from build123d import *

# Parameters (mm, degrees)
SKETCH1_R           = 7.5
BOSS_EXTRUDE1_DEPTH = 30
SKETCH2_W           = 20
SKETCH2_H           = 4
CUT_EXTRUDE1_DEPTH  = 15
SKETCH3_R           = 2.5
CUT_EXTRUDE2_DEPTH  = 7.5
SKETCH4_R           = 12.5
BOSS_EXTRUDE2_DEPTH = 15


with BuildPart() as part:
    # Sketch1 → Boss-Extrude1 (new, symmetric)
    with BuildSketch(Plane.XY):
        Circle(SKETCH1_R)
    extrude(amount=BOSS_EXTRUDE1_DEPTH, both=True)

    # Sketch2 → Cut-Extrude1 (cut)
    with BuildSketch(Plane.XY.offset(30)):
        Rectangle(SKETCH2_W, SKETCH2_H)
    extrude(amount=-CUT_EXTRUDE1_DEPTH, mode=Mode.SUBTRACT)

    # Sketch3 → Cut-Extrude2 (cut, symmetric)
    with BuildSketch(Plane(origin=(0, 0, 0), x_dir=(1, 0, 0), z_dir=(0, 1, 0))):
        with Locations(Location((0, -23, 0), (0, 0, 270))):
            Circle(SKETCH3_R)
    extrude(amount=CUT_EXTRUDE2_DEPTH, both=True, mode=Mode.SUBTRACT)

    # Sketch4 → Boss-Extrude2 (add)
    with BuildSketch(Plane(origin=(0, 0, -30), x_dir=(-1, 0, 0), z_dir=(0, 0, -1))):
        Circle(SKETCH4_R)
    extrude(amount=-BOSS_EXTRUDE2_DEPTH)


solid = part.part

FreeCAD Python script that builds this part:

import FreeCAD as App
import Part
import Sketcher
from FreeCAD import Vector


def add_polygon(sketch, points):
    """Adds a closed chain of lines whose ends are joined by coincident constraints."""
    first, n = sketch.GeometryCount, len(points)
    for a, b in zip(points, points[1:] + points[:1]):
        sketch.addGeometry(Part.LineSegment(App.Vector(*a, 0), App.Vector(*b, 0)), False)
    for i in range(n):
        sketch.addConstraint(Sketcher.Constraint("Coincident", first + i, 2, first + (i + 1) % n, 1))

doc = App.newDocument("Part")
body = doc.addObject("PartDesign::Body", "Body")

# Sketch on XY plane
sketch1 = doc.addObject("Sketcher::SketchObject", "Sketch")
body.addObject(sketch1)
sketch1.AttachmentSupport = (doc.XY_Plane, [""])
sketch1.MapMode = "FlatFace"
sketch1.addGeometry(Part.Circle(Vector(0, 0, 0), Vector(0, 0, 1), 7.5), False)
sketch1.addConstraint([
    Sketcher.Constraint("Coincident", 0, 3, -1, 1),
    Sketcher.Constraint("Diameter", 0, 15.0),
])
pad1 = doc.addObject("PartDesign::Pad", "Pad")
body.addObject(pad1)
pad1.Profile = sketch1
pad1.Length = 60
pad1.Midplane = True

# Sketch on XY plane
sketch2 = doc.addObject("Sketcher::SketchObject", "Sketch001")
body.addObject(sketch2)
sketch2.AttachmentSupport = (doc.XY_Plane, [""])
sketch2.MapMode = "FlatFace"
sketch2.AttachmentOffset = App.Placement(Vector(0, 0, 30), App.Rotation())
add_polygon(sketch2, [(-10, 2), (-10, -2), (10, -2), (10, 2)])  # lines 0-3
sketch2.addConstraint([
    Sketcher.Constraint("Vertical", 0),
    Sketcher.Constraint("Horizontal", 1),
    Sketcher.Constraint("Vertical", 2),
    Sketcher.Constraint("Horizontal", 3),
    Sketcher.Constraint("Symmetric", 0, 2, 2, 2, -1, 1),
    Sketcher.Constraint("DistanceX", 1, 1, 1, 2, 20.0),
    Sketcher.Constraint("DistanceY", 0, 2, 0, 1, 4.0),
])
pocket1 = doc.addObject("PartDesign::Pocket", "Pocket")
body.addObject(pocket1)
pocket1.Profile = sketch2
pocket1.Length = 15

# Sketch on XZ plane
sketch3 = doc.addObject("Sketcher::SketchObject", "Sketch002")
body.addObject(sketch3)
sketch3.AttachmentSupport = (doc.XZ_Plane, [""])
sketch3.MapMode = "FlatFace"
sketch3.addGeometry(Part.Circle(Vector(0, 23, 0), Vector(0, 0, 1), 2.5), False)
sketch3.addConstraint([
    Sketcher.Constraint("PointOnObject", 0, 3, -2),
    Sketcher.Constraint("Diameter", 0, 5.0),
    Sketcher.Constraint("DistanceY", -1, 1, 0, 3, 23.0),
])
pocket2 = doc.addObject("PartDesign::Pocket", "Pocket001")
body.addObject(pocket2)
pocket2.Profile = sketch3
pocket2.Length = 15
pocket2.Midplane = True

# Sketch on XY plane
sketch4 = doc.addObject("Sketcher::SketchObject", "Sketch003")
body.addObject(sketch4)
sketch4.AttachmentSupport = (doc.XY_Plane, [""])
sketch4.MapMode = "FlatFace"
sketch4.AttachmentOffset = App.Placement(Vector(0, 0, -30), App.Rotation())
sketch4.addGeometry(Part.Circle(Vector(0, 0, 0), Vector(0, 0, 1), 12.5), False)
sketch4.addConstraint([
    Sketcher.Constraint("Coincident", 0, 3, -1, 1),
    Sketcher.Constraint("Diameter", 0, 25.0),
])
pad2 = doc.addObject("PartDesign::Pad", "Pad001")
body.addObject(pad2)
pad2.Profile = sketch4
pad2.Length = 15

doc.recompute()
